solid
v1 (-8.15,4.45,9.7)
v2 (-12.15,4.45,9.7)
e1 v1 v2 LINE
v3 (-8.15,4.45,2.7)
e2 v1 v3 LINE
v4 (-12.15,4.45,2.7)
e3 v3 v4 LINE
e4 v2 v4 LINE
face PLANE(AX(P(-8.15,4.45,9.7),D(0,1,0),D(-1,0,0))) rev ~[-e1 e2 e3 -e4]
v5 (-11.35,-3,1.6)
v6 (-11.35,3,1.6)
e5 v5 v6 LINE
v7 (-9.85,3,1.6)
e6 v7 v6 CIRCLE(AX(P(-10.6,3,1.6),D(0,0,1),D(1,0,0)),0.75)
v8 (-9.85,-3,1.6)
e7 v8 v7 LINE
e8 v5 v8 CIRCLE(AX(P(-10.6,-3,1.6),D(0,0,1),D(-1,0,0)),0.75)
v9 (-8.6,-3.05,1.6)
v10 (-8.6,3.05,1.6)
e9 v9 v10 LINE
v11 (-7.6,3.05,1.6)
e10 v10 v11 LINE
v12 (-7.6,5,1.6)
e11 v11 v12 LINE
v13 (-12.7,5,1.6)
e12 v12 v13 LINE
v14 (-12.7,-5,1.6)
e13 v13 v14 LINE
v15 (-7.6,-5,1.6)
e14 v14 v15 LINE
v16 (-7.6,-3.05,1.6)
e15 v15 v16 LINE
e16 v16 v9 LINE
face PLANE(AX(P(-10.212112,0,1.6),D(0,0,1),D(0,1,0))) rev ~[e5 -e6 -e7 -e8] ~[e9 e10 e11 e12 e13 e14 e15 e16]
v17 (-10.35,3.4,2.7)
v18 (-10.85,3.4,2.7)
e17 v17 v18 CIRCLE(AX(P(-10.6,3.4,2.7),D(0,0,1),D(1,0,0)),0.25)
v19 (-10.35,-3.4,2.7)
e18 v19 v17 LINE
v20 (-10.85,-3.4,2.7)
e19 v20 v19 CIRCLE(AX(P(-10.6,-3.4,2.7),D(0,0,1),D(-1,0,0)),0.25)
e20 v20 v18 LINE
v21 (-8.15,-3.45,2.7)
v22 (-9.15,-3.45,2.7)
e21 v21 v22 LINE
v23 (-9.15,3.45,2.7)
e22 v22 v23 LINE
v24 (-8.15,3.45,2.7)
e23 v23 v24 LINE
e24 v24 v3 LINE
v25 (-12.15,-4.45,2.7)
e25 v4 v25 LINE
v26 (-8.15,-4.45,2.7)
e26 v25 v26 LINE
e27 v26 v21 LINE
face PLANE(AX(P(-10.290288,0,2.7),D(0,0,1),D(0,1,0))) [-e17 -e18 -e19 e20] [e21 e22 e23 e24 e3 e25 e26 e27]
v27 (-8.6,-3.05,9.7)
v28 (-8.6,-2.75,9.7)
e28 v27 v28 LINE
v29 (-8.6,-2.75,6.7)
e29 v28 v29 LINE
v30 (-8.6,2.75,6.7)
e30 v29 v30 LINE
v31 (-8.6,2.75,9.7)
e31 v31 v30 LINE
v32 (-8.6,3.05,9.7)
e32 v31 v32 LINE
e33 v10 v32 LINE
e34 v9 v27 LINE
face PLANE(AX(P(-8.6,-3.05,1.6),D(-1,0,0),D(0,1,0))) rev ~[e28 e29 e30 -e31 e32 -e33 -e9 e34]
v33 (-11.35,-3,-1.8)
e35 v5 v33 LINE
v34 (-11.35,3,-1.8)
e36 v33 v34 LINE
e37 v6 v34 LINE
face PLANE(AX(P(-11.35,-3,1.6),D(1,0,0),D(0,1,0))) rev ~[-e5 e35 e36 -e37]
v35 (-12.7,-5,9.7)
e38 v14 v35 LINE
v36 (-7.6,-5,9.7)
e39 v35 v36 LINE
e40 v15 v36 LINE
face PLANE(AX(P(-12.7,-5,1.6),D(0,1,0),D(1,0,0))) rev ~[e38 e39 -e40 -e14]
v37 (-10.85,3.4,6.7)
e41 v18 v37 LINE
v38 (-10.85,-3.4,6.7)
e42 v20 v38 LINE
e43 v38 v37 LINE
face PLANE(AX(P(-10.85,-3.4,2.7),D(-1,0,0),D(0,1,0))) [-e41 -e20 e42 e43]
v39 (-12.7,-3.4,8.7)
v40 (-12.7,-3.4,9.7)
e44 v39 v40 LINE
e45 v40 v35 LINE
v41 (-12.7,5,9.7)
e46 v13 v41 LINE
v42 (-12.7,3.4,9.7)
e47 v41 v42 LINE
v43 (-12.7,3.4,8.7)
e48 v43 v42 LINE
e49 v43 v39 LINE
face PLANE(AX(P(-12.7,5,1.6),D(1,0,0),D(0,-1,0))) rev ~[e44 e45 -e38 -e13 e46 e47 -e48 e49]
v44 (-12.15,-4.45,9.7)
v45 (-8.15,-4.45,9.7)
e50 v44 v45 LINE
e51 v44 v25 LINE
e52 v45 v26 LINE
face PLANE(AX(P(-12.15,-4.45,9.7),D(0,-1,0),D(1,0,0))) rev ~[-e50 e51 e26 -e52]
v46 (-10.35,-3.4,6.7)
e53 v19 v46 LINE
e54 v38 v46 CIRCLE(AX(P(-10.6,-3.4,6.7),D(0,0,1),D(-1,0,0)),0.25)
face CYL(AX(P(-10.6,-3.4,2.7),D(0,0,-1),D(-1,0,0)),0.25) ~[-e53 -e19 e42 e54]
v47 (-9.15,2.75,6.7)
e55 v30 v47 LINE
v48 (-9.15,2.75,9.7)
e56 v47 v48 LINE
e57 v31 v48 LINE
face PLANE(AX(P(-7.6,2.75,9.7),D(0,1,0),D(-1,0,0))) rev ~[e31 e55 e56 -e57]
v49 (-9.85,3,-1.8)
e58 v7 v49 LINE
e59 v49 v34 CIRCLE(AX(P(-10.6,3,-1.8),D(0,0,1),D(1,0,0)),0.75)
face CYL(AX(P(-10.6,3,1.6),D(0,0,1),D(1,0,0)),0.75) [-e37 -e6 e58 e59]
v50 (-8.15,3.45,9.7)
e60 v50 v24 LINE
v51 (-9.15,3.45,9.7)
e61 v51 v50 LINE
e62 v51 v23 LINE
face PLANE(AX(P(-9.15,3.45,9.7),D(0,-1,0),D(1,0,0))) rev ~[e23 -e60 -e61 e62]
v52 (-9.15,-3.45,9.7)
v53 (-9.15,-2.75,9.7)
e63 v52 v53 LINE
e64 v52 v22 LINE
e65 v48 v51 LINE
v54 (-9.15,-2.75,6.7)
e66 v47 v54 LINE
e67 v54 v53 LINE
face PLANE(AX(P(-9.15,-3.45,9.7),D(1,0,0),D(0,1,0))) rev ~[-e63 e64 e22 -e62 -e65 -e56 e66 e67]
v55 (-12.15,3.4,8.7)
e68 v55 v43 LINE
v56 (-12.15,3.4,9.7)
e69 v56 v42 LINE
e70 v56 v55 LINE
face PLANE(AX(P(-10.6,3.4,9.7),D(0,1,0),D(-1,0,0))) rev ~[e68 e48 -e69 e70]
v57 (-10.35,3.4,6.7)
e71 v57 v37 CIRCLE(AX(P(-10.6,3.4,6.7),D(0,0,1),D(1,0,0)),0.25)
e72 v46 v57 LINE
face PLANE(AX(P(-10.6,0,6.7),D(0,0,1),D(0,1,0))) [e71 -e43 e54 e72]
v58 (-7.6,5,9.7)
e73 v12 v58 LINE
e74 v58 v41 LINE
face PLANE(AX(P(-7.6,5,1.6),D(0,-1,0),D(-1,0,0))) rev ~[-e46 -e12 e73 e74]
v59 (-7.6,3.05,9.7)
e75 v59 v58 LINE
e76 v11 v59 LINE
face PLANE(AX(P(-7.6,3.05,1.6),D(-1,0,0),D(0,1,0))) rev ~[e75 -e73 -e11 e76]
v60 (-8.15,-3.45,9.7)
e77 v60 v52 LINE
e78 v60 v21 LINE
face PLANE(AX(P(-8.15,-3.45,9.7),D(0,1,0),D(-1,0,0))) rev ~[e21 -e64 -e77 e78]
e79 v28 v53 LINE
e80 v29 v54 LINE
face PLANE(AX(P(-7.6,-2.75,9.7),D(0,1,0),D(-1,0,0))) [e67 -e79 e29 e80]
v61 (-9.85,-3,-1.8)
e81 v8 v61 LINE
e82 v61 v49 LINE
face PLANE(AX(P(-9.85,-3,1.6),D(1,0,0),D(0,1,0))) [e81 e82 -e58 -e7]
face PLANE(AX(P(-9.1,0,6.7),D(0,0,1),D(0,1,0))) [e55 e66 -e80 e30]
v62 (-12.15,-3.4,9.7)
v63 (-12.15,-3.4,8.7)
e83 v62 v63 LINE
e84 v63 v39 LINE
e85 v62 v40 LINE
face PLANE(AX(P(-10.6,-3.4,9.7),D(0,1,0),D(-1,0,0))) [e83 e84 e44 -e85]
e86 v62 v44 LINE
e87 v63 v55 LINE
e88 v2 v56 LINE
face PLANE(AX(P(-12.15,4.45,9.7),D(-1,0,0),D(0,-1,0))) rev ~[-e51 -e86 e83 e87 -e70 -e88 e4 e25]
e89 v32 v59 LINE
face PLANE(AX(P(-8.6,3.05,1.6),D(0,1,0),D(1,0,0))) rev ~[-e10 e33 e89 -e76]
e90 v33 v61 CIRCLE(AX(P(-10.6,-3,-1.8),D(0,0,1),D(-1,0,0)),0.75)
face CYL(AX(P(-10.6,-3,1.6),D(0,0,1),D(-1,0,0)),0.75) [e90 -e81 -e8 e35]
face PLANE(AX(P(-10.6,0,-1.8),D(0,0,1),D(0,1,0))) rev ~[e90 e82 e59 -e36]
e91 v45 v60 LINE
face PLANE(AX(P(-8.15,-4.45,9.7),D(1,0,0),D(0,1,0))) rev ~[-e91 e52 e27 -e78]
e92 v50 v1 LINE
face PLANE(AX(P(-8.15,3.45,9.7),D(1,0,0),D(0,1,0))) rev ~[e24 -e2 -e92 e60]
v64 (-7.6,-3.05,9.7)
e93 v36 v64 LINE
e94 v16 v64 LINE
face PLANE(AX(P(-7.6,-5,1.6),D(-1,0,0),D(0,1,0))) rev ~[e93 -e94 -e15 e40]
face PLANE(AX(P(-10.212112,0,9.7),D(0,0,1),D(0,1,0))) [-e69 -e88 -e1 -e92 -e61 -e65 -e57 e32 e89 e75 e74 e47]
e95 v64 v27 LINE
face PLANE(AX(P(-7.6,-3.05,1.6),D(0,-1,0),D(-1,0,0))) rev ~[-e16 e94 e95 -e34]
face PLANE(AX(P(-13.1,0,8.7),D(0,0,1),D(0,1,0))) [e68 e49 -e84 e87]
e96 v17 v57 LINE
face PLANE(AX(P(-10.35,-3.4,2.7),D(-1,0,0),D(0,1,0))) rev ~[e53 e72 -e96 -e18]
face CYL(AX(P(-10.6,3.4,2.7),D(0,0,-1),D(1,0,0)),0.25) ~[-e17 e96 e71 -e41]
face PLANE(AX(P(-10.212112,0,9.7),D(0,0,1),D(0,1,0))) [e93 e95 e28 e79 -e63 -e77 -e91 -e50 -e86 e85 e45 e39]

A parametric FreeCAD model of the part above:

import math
import FreeCAD as App
import Part
import Sketcher

V = App.Vector


def add_polygon(sketch, points):
    """Adds a closed chain of lines whose ends are joined by coincident constraints."""
    first, n = sketch.GeometryCount, len(points)
    for a, b in zip(points, points[1:] + points[:1]):
        sketch.addGeometry(Part.LineSegment(App.Vector(*a, 0), App.Vector(*b, 0)), False)
    for i in range(n):
        sketch.addConstraint(Sketcher.Constraint("Coincident", first + i, 2, first + (i + 1) % n, 1))

doc = App.newDocument("Part")
params = doc.addObject("Spreadsheet::Sheet", "Params")
for row, (alias, value) in enumerate([
    ("sketch1_width", "10 mm"),
    ("sketch1_height", "1 mm"),
    ("sketch1_width2", "6.1 mm"),
    ("sketch1_height2", "5.1 mm"),
    ("pad1_length", "8.1 mm"),
    ("sketch2_width", "1 mm"),
    ("sketch2_height", "4 mm"),
    ("sketch2_width2", "6.9 mm"),
    ("pocket1_length", "7 mm"),
    ("sketch3_height", "5 mm"),
    ("sketch3_width", "6.8 mm"),
    ("pocket2_length", "1 mm"),
    ("sketch4_height", "3 mm"),
    ("sketch4_width", "5.5 mm"),
    ("pocket3_length", "3 mm"),
    ("sketch5_radius", "0.25 mm"),
    ("sketch5_width", "6.8 mm"),
    ("pad2_length", "4 mm"),
    ("sketch6_width", "6 mm"),
    ("sketch6_radius", "0.75 mm"),
    ("pad3_length", "3.4 mm"),
], start=1):
    params.set(f"A{row}", alias)
    params.set(f"B{row}", "=" + value)
    params.setAlias(f"B{row}", alias)

body = doc.addObject("PartDesign::Body", "Body")

sketch1 = body.newObject("Sketcher::SketchObject", "Sketch")
sketch1.AttachmentSupport = (doc.getObject("XY_Plane"), [""])
sketch1.MapMode = "FlatFace"
add_polygon(sketch1, [(-5, 0), (-3, 0), (-3, 1), (3, 1), (3, 0), (5, 0), (5, 5.1), (-5, 5.1)])
sketch1.addConstraint(Sketcher.Constraint("Horizontal", 0))
sketch1.addConstraint(Sketcher.Constraint("Vertical", 1))
sketch1.addConstraint(Sketcher.Constraint("Horizontal", 2))
sketch1.addConstraint(Sketcher.Constraint("Vertical", 3))
sketch1.addConstraint(Sketcher.Constraint("Horizontal", 4))
sketch1.addConstraint(Sketcher.Constraint("Vertical", 5))
sketch1.addConstraint(Sketcher.Constraint("Horizontal", 6))
sketch1.addConstraint(Sketcher.Constraint("Vertical", 7))
sketch1.addConstraint(Sketcher.Constraint("Symmetric", 0, 2, 3, 2, -1, 1))
sketch1.addConstraint(Sketcher.Constraint("Symmetric", 4, 2, 7, 2, -2))
sketch1.addConstraint(Sketcher.Constraint("DistanceX", 6, 2, 6, 1, 10.0))
sketch1.addConstraint(Sketcher.Constraint("DistanceY", 1, 1, 1, 2, 1.0))
sketch1.addConstraint(Sketcher.Constraint("DistanceX", 2, 1, 2, 2, 6.1))
sketch1.addConstraint(Sketcher.Constraint("DistanceY", 5, 1, 5, 2, 5.1))
sketch1.setExpression("Constraints[18]", "Params.sketch1_width")
sketch1.setExpression("Constraints[19]", "Params.sketch1_height")
sketch1.setExpression("Constraints[20]", "Params.sketch1_width2")
sketch1.setExpression("Constraints[21]", "Params.sketch1_height2")
pad1 = body.newObject("PartDesign::Pad", "Pad")
pad1.Profile = sketch1
pad1.setExpression("Length", "Params.pad1_length")

sketch2 = body.newObject("Sketcher::SketchObject", "Sketch001")
sketch2.AttachmentSupport = (doc.getObject("XY_Plane"), [""])
sketch2.MapMode = "FlatFace"
sketch2.AttachmentOffset = App.Placement(V(0, 0, 8.1), App.Rotation())
add_polygon(sketch2, [(-4.5, 0.6), (-3.5, 0.6), (-3.5, 1.6), (3.5, 1.6), (3.5, 0.6), (4.5, 0.6), (4.5, 4.5), (-4.5, 4.5)])
sketch2.addConstraint(Sketcher.Constraint("Horizontal", 0))
sketch2.addConstraint(Sketcher.Constraint("Vertical", 1))
sketch2.addConstraint(Sketcher.Constraint("Horizontal", 2))
sketch2.addConstraint(Sketcher.Constraint("Vertical", 3))
sketch2.addConstraint(Sketcher.Constraint("Horizontal", 4))
sketch2.addConstraint(Sketcher.Constraint("Vertical", 5))
sketch2.addConstraint(Sketcher.Constraint("Horizontal", 6))
sketch2.addConstraint(Sketcher.Constraint("Vertical", 7))
sketch2.addConstraint(Sketcher.Constraint("Symmetric", 0, 2, 3, 2, -2))
sketch2.addConstraint(Sketcher.Constraint("Equal", 0, 4))
sketch2.addConstraint(Sketcher.Constraint("Equal", 4, 1))
sketch2.addConstraint(Sketcher.Constraint("DistanceX", 0, 1, 0, 2, 1.0))
sketch2.addConstraint(Sketcher.Constraint("DistanceY", 5, 1, 5, 2, 4.0))
sketch2.addConstraint(Sketcher.Constraint("DistanceX", 2, 1, 2, 2, 6.9))
sketch2.addConstraint(Sketcher.Constraint("DistanceY", -1, 1, 0, 2, 0.55))
sketch2.setExpression("Constraints[19]", "Params.sketch2_width")
sketch2.setExpression("Constraints[20]", "Params.sketch2_height")
sketch2.setExpression("Constraints[21]", "Params.sketch2_width2")
pocket1 = body.newObject("PartDesign::Pocket", "Pocket")
pocket1.Profile = sketch2
pocket1.setExpression("Length", "Params.pocket1_length")

sketch3 = body.newObject("Sketcher::SketchObject", "Sketch002")
sketch3.AttachmentSupport = (doc.getObject("XY_Plane"), [""])
sketch3.MapMode = "FlatFace"
sketch3.AttachmentOffset = App.Placement(V(0, 0, 8.1), App.Rotation())
add_polygon(sketch3, [(-3, 8), (-3, 3), (3, 3), (3, 8)])
sketch3.addConstraint(Sketcher.Constraint("Vertical", 0))
sketch3.addConstraint(Sketcher.Constraint("Horizontal", 1))
sketch3.addConstraint(Sketcher.Constraint("Vertical", 2))
sketch3.addConstraint(Sketcher.Constraint("Horizontal", 3))
sketch3.addConstraint(Sketcher.Constraint("DistanceY", 0, 2, 0, 1, 5.0))
sketch3.addConstraint(Sketcher.Constraint("DistanceX", 1, 1, 1, 2, 6.8))
sketch3.addConstraint(Sketcher.Constraint("DistanceY", -1, 1, 0, 2, 3.0))
sketch3.addConstraint(Sketcher.Constraint("DistanceX", 0, 2, -1, 1, 3.4))
sketch3.setExpression("Constraints[8]", "Params.sketch3_height")
sketch3.setExpression("Constraints[9]", "Params.sketch3_width")
pocket2 = body.newObject("PartDesign::Pocket", "Pocket001")
pocket2.Profile = sketch3
pocket2.setExpression("Length", "Params.pocket2_length")

sketch4 = body.newObject("Sketcher::SketchObject", "Sketch003")
sketch4.AttachmentSupport = (doc.getObject("XY_Plane"), [""])
sketch4.MapMode = "FlatFace"
sketch4.AttachmentOffset = App.Placement(V(0, 0, 8.1), App.Rotation())
add_polygon(sketch4, [(-2.8, 3), (-2.8, 0), (2.8, 0), (2.8, 3)])
sketch4.addConstraint(Sketcher.Constraint("Vertical", 0))
sketch4.addConstraint(Sketcher.Constraint("Horizontal", 1))
sketch4.addConstraint(Sketcher.Constraint("Vertical", 2))
sketch4.addConstraint(Sketcher.Constraint("Horizontal", 3))
sketch4.addConstraint(Sketcher.Constraint("Symmetric", 0, 2, 1, 2, -1, 1))
sketch4.addConstraint(Sketcher.Constraint("DistanceY", 0, 2, 0, 1, 3.0))
sketch4.addConstraint(Sketcher.Constraint("DistanceX", 1, 1, 1, 2, 5.5))
sketch4.setExpression("Constraints[9]", "Params.sketch4_height")
sketch4.setExpression("Constraints[10]", "Params.sketch4_width")
pocket3 = body.newObject("PartDesign::Pocket", "Pocket002")
pocket3.Profile = sketch4
pocket3.setExpression("Length", "Params.pocket3_length")

sketch5 = body.newObject("Sketcher::SketchObject", "Sketch004")
sketch5.AttachmentSupport = (doc.getObject("XY_Plane"), [""])
sketch5.MapMode = "FlatFace"
sketch5.AttachmentOffset = App.Placement(V(0, 0, 1.1), App.Rotation())
sketch5.addGeometry(Part.ArcOfCircle(Part.Circle(V(-3.4, 3, 0), V(0, 0, 1), 0.25), math.radians(90), math.radians(270)), False)
sketch5.addGeometry(Part.LineSegment(V(-3.4, 2.75, 0), V(3.4, 2.75, 0)), False)
sketch5.addGeometry(Part.ArcOfCircle(Part.Circle(V(3.4, 3, 0), V(0, 0, 1), 0.25), math.radians(-90), math.radians(90)), False)
sketch5.addGeometry(Part.LineSegment(V(3.4, 3.25, 0), V(-3.4, 3.25, 0)), False)
sketch5.addConstraint(Sketcher.Constraint("Tangent", 0, 2, 1, 1))
sketch5.addConstraint(Sketcher.Constraint("Tangent", 1, 2, 2, 1))
sketch5.addConstraint(Sketcher.Constraint("Tangent", 2, 2, 3, 1))
sketch5.addConstraint(Sketcher.Constraint("Tangent", 3, 2, 0, 1))
sketch5.addConstraint(Sketcher.Constraint("Horizontal", 1))
sketch5.addConstraint(Sketcher.Constraint("Horizontal", 3))
sketch5.addConstraint(Sketcher.Constraint("Radius", 0, 0.25))
sketch5.addConstraint(Sketcher.Constraint("DistanceX", 1, 1, 1, 2, 6.8))
sketch5.addConstraint(Sketcher.Constraint("DistanceY", -1, 1, 0, 3, 3.0))
sketch5.addConstraint(Sketcher.Constraint("DistanceX", 0, 3, -1, 1, 3.4))
sketch5.setExpression("Constraints[6]", "Params.sketch5_radius")
sketch5.setExpression("Constraints[7]", "Params.sketch5_width")
pad2 = body.newObject("PartDesign::Pad", "Pad001")
pad2.Profile = sketch5
pad2.setExpression("Length", "Params.pad2_length")

sketch6 = body.newObject("Sketcher::SketchObject", "Sketch005")
sketch6.AttachmentSupport = (doc.getObject("XY_Plane"), [""])
sketch6.MapMode = "FlatFace"
sketch6.addGeometry(Part.ArcOfCircle(Part.Circle(V(-3, 3, 0), V(0, 0, 1), 0.8), math.radians(90), math.radians(270)), False)
sketch6.addGeometry(Part.LineSegment(V(-3, 2.2, 0), V(3, 2.2, 0)), False)
sketch6.addGeometry(Part.ArcOfCircle(Part.Circle(V(3, 3, 0), V(0, 0, 1), 0.8), math.radians(-90), math.radians(90)), False)
sketch6.addGeometry(Part.LineSegment(V(3, 3.8, 0), V(-3, 3.8, 0)), False)
sketch6.addConstraint(Sketcher.Constraint("Tangent", 0, 2, 1, 1))
sketch6.addConstraint(Sketcher.Constraint("Tangent", 1, 2, 2, 1))
sketch6.addConstraint(Sketcher.Constraint("Tangent", 2, 2, 3, 1))
sketch6.addConstraint(Sketcher.Constraint("Tangent", 3, 2, 0, 1))
sketch6.addConstraint(Sketcher.Constraint("Horizontal", 1))
sketch6.addConstraint(Sketcher.Constraint("Horizontal", 3))
sketch6.addConstraint(Sketcher.Constraint("DistanceX", 1, 1, 1, 2, 6.0))
sketch6.addConstraint(Sketcher.Constraint("Radius", 0, 0.75))
sketch6.addConstraint(Sketcher.Constraint("DistanceX", 0, 3, -1, 1, 3.0))
sketch6.addConstraint(Sketcher.Constraint("DistanceY", -1, 1, 0, 3, 3.0))
sketch6.setExpression("Constraints[6]", "Params.sketch6_width")
sketch6.setExpression("Constraints[7]", "Params.sketch6_radius")
pad3 = body.newObject("PartDesign::Pad", "Pad002")
pad3.Profile = sketch6
pad3.setExpression("Length", "Params.pad3_length")
pad3.Reversed = True
body2 = doc.addObject("PartDesign::Body", "Body001")
doc.recompute()

body.Placement = App.Placement(V(-13.8, 0, 1.6), App.Rotation(V(0, 0, 1), 90))
boolean = body2.newObject("PartDesign::Boolean", "Boolean")
boolean.Type = "Fuse"
boolean.addObjects([body])
body3 = doc.addObject("PartDesign::Body", "Body002")
doc.recompute()

body2.Placement = App.Placement(V(-0.2, 0, 0), App.Rotation(V(0, 0, 1), 0))
boolean2 = body3.newObject("PartDesign::Boolean", "Boolean001")
boolean2.Type = "Fuse"
boolean2.addObjects([body2])
body4 = doc.addObject("PartDesign::Body", "Body003")
doc.recompute()

body3.Placement = App.Placement(V(6.4, 0, 0), App.Rotation(V(0, 0, 1), 0))
boolean3 = body4.newObject("PartDesign::Boolean", "Boolean002")
boolean3.Type = "Fuse"
boolean3.addObjects([body3])

doc.recompute()
